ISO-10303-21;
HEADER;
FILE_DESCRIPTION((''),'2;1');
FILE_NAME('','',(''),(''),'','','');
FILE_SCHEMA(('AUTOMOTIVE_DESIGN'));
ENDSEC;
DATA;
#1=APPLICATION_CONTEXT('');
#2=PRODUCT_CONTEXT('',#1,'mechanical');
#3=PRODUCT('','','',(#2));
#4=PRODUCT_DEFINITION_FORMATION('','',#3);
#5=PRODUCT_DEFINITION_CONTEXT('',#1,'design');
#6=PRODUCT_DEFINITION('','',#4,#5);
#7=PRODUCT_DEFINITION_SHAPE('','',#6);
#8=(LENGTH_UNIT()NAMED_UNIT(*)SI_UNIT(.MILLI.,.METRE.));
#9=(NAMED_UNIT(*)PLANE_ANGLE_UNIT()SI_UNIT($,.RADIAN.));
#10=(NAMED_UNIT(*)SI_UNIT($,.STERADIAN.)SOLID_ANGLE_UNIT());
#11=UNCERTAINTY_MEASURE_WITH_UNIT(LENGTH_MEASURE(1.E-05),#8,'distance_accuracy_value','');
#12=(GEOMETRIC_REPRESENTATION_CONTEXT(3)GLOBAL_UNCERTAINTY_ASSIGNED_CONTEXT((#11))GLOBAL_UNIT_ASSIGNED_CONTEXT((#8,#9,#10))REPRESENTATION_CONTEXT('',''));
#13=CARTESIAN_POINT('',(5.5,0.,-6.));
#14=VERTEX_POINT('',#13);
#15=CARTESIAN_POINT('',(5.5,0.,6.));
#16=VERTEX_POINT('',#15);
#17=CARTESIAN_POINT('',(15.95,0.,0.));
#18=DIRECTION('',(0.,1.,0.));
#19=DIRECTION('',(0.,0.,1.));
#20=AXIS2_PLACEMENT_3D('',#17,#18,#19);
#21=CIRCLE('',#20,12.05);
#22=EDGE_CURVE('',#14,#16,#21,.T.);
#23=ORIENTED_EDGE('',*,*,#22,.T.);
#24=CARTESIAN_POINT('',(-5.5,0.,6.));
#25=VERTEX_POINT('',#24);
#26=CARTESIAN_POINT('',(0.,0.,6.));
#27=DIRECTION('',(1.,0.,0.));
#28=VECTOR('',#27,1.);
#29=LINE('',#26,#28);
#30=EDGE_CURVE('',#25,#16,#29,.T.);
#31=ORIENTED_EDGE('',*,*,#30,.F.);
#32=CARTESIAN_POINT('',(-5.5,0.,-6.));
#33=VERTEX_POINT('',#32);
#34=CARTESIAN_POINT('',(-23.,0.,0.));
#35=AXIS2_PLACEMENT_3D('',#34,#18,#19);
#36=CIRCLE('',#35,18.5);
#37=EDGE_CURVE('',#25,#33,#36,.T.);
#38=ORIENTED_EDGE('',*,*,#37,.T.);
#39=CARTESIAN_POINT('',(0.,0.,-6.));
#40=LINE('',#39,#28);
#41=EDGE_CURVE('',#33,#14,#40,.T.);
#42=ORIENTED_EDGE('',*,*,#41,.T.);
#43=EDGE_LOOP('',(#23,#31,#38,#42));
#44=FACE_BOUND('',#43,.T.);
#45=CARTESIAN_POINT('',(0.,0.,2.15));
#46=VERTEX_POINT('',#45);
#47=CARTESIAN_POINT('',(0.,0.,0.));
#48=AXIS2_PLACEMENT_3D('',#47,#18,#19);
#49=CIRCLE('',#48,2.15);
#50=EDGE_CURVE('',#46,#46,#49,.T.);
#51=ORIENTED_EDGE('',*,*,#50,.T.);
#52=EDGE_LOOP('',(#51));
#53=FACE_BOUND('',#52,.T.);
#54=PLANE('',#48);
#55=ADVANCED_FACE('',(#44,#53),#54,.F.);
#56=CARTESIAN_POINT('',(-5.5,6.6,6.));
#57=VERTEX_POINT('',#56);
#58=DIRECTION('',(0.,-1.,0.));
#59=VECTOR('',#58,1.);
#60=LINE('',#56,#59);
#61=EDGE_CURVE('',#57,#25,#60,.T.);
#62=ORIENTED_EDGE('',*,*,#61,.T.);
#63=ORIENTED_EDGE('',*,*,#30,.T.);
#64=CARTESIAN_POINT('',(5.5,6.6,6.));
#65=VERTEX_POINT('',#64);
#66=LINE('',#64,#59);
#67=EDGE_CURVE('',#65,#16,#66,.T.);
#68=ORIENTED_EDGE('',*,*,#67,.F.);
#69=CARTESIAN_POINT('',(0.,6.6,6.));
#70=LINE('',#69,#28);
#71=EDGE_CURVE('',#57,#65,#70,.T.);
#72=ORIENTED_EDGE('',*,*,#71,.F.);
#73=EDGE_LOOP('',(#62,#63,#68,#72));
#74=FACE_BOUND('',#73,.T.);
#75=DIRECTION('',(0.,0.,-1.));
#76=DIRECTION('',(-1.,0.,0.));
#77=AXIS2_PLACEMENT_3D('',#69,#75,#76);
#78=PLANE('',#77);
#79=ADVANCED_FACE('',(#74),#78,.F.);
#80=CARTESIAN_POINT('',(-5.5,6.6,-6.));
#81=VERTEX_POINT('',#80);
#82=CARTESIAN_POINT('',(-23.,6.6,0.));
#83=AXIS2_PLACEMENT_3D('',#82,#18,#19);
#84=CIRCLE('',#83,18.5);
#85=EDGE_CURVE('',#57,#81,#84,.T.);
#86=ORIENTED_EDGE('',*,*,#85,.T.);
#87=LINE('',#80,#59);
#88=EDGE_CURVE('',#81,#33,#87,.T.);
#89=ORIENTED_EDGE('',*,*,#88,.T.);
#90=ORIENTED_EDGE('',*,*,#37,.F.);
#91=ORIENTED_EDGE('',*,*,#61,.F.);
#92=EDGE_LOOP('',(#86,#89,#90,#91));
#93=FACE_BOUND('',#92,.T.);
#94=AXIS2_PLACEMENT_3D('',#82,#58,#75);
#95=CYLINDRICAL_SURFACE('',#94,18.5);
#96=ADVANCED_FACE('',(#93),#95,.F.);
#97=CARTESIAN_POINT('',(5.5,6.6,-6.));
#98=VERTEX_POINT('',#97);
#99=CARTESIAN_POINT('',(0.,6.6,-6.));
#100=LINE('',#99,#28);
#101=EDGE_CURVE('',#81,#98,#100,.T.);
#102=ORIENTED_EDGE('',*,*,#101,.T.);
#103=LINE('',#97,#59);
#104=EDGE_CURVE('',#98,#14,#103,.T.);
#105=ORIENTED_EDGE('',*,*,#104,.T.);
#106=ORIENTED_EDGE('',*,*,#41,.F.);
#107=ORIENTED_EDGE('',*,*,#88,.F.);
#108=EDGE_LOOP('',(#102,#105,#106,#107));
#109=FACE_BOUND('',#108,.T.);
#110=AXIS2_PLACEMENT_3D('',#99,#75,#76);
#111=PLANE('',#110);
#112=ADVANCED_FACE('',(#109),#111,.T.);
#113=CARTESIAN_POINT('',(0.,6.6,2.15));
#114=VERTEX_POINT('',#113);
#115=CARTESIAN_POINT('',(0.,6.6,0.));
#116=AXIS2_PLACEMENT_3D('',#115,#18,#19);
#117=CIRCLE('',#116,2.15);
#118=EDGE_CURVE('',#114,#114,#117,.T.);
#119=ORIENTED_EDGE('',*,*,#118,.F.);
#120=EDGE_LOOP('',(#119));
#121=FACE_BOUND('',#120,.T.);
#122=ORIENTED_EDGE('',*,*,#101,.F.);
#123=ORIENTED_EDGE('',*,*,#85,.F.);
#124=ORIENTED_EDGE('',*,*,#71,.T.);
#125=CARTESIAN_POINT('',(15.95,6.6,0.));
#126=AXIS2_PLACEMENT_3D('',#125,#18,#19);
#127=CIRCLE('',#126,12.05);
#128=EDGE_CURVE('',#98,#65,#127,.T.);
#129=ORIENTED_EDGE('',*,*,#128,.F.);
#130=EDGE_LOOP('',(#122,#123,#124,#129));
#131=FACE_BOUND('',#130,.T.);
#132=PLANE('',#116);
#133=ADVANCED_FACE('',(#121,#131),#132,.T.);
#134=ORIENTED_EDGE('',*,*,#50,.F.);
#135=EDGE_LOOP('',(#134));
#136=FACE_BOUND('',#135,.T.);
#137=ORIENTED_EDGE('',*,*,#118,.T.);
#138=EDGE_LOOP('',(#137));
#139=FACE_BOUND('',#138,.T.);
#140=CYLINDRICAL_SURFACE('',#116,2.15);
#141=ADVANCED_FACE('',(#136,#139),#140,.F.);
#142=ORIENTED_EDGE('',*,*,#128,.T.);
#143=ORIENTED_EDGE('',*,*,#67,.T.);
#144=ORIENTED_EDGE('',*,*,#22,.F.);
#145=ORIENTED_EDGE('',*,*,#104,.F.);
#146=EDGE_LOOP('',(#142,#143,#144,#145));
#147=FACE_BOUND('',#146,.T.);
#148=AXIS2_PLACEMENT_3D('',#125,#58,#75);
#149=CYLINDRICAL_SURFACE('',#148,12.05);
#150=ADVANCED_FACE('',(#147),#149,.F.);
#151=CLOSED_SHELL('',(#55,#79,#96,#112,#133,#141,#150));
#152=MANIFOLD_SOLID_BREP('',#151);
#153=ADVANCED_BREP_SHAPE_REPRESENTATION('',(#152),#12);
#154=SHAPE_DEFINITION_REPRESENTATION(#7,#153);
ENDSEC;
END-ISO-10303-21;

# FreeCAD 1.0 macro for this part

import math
import FreeCAD as App
import Part
import Sketcher

doc = App.newDocument("Part")
body = doc.addObject("PartDesign::Body", "Body")

# Sketch on XZ plane
sketch1 = body.newObject("Sketcher::SketchObject", "Sketch")
sketch1.AttachmentSupport = (doc.getObject("XZ_Plane"), [""])
sketch1.MapMode = "FlatFace"
sketch1.addGeometry(Part.LineSegment(App.Vector(6, -6, 0), App.Vector(-6, -6, 0)), False)
sketch1.addGeometry(Part.ArcOfCircle(Part.Circle(App.Vector(-23, 0, 0), App.Vector(0, 0, 1), 18), math.radians(-18.92), math.radians(0)), False)
sketch1.addGeometry(Part.ArcOfCircle(Part.Circle(App.Vector(-23, 0, 0), App.Vector(0, 0, 1), 18), math.radians(0), math.radians(18.92)), False)
sketch1.addGeometry(Part.LineSegment(App.Vector(-6, 6, 0), App.Vector(6, 6, 0)), False)
sketch1.addGeometry(Part.ArcOfCircle(Part.Circle(App.Vector(16, 0, 0), App.Vector(0, 0, 1), 12), math.radians(150), math.radians(210)), False)
sketch1.addConstraint(Sketcher.Constraint("Coincident", 0, 2, 1, 1))
sketch1.addConstraint(Sketcher.Constraint("Tangent", 1, 2, 2, 1))
sketch1.addConstraint(Sketcher.Constraint("Coincident", 2, 2, 3, 1))
sketch1.addConstraint(Sketcher.Constraint("Coincident", 3, 2, 4, 1))
sketch1.addConstraint(Sketcher.Constraint("Coincident", 4, 2, 0, 1))
sketch1.addConstraint(Sketcher.Constraint("Horizontal", 0))
sketch1.addConstraint(Sketcher.Constraint("Horizontal", 3))
sketch1.addConstraint(Sketcher.Constraint("Equal", 1, 2))
sketch1.addConstraint(Sketcher.Constraint("Symmetric", 0, 2, 3, 2, -1, 1))
sketch1.addConstraint(Sketcher.Constraint("PointOnObject", 1, 3, -1))
sketch1.addConstraint(Sketcher.Constraint("PointOnObject", 4, 3, -1))
sketch1.addConstraint(Sketcher.Constraint("PointOnObject", 1, 2, -1))
sketch1.addConstraint(Sketcher.Constraint("Radius", 1, 18.5))
sketch1.addConstraint(Sketcher.Constraint("DistanceX", 0, 2, 0, 1, 11.0))
sketch1.addConstraint(Sketcher.Constraint("Radius", 4, 12.05))
sketch1.addConstraint(Sketcher.Constraint("DistanceX", 1, 3, -1, 1, 23.0))
pad1 = body.newObject("PartDesign::Pad", "Pad")
pad1.Profile = sketch1
pad1.Length = 6.6
pad1.Reversed = True

# Sketch on XZ plane
sketch2 = body.newObject("Sketcher::SketchObject", "Sketch001")
sketch2.AttachmentSupport = (doc.getObject("XZ_Plane"), [""])
sketch2.MapMode = "FlatFace"
sketch2.AttachmentOffset = App.Placement(App.Vector(0, 0, -6.6), App.Rotation())
sketch2.addGeometry(Part.Circle(App.Vector(0, 0, 0), App.Vector(0, 0, 1), 2.1), False)
sketch2.addConstraint(Sketcher.Constraint("Coincident", 0, 3, -1, 1))
sketch2.addConstraint(Sketcher.Constraint("Diameter", 0, 4.3))
doc.recompute()
hole = body.newObject("PartDesign::Hole", "Hole")
hole.Profile = sketch2
hole.ThreadType = "None"
hole.Diameter = 4.3
hole.DepthType = "ThroughAll"
hole.Reversed = True

doc.recompute()
